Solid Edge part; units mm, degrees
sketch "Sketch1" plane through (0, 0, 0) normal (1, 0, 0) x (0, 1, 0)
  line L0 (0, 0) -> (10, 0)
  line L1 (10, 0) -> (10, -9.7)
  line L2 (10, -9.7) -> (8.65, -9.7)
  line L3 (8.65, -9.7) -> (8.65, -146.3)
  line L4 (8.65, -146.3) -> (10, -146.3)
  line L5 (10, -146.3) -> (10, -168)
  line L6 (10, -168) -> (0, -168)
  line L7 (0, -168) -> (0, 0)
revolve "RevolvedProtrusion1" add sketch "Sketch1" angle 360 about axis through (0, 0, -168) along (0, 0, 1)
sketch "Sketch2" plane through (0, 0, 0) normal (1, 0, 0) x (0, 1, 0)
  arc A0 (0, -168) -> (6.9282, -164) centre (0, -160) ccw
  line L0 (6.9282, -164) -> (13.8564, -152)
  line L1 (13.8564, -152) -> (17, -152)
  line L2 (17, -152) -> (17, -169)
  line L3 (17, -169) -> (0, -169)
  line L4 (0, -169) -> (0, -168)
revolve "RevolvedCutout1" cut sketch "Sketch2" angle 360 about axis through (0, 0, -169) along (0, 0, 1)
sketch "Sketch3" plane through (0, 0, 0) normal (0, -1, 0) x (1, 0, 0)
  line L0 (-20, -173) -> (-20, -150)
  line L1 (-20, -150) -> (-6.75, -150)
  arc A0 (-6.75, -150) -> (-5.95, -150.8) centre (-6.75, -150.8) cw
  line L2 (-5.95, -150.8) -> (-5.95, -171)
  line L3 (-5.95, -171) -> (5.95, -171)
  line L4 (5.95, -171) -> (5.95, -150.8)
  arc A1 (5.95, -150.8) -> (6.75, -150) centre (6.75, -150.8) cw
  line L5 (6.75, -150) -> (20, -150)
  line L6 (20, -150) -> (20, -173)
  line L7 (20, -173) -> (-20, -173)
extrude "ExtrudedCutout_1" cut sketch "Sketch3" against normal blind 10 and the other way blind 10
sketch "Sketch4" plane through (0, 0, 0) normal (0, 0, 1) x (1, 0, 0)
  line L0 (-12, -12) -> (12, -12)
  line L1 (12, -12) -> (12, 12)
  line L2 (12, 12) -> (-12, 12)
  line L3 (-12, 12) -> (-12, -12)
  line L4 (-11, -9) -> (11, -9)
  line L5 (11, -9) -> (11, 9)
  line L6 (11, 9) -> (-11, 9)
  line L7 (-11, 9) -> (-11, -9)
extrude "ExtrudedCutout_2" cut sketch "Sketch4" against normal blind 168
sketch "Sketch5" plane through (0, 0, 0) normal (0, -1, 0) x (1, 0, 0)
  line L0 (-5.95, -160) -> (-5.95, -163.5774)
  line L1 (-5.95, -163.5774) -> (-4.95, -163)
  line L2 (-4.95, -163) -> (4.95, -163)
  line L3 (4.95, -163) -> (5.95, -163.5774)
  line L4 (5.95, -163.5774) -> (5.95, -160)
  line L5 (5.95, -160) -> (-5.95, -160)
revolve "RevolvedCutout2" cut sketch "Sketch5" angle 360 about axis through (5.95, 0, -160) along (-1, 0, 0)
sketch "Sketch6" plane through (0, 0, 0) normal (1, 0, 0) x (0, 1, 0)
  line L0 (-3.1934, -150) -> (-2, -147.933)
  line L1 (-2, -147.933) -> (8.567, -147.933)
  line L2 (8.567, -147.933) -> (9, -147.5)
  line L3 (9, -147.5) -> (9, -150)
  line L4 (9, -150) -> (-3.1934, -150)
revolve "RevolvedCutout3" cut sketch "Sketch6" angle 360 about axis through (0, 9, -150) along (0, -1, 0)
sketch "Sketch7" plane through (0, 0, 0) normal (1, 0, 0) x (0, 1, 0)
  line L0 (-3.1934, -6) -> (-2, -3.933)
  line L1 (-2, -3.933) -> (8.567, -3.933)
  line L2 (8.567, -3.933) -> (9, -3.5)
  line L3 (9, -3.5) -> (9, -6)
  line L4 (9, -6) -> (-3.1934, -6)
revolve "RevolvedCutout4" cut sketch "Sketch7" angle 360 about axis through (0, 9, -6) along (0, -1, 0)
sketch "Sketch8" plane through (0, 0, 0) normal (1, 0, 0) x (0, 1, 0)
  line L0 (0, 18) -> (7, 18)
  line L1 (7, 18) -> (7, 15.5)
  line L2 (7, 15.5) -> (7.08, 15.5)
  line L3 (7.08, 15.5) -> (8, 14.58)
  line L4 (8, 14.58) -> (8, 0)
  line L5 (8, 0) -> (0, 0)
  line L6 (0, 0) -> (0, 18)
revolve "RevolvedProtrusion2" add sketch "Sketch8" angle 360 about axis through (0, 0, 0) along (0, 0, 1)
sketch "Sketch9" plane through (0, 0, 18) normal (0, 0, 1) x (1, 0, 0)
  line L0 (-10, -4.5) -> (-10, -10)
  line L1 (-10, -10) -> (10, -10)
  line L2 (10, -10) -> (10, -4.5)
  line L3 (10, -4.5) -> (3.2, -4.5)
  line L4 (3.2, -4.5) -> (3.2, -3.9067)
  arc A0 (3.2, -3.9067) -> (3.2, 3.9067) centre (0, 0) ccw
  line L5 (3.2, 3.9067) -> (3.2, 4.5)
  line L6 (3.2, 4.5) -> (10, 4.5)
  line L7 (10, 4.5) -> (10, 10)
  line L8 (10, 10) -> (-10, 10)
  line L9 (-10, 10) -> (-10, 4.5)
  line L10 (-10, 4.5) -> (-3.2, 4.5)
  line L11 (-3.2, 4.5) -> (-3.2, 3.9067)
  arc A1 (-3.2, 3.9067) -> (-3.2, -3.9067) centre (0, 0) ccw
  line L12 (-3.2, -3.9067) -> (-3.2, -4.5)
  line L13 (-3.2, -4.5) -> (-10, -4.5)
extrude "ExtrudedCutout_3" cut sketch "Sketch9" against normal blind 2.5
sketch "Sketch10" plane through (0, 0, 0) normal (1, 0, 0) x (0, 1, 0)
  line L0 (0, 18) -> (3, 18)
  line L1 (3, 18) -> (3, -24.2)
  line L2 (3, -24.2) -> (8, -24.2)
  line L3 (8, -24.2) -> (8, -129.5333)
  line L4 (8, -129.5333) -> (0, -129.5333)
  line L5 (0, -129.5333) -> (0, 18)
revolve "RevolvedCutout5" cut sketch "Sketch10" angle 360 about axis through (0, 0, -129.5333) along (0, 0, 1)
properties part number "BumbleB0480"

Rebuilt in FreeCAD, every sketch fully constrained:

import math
import FreeCAD as App
import Part
import Sketcher
Q = App.Units.Quantity

doc = App.newDocument("Part")
body = doc.addObject("PartDesign::Body", "Body")

sketch1 = body.newObject("Sketcher::SketchObject", "Sketch")
sketch1.AttachmentSupport = (doc.getObject("YZ_Plane"), [""])
sketch1.MapMode = "FlatFace"
sketch1.addGeometry([
    Part.LineSegment(App.Vector(10, 0, 0), App.Vector(0, 0, 0)),
    Part.LineSegment(App.Vector(0, 0, 0), App.Vector(0, -168, 0)),
    Part.LineSegment(App.Vector(0, -168, 0), App.Vector(10, -168, 0)),
    Part.LineSegment(App.Vector(10, -168, 0), App.Vector(10, -146.3, 0)),
    Part.LineSegment(App.Vector(10, -146.3, 0), App.Vector(8.7, -146.3, 0)),
    Part.LineSegment(App.Vector(8.7, -146.3, 0), App.Vector(8.7, -9.7, 0)),
    Part.LineSegment(App.Vector(8.7, -9.7, 0), App.Vector(10, -9.7, 0)),
    Part.LineSegment(App.Vector(10, -9.7, 0), App.Vector(10, 0, 0)),
], False)
sketch1.addConstraint([
    Sketcher.Constraint("Coincident", 0, 2, 1, 1),
    Sketcher.Constraint("Coincident", 1, 2, 2, 1),
    Sketcher.Constraint("Coincident", 2, 2, 3, 1),
    Sketcher.Constraint("Coincident", 3, 2, 4, 1),
    Sketcher.Constraint("Coincident", 4, 2, 5, 1),
    Sketcher.Constraint("Coincident", 5, 2, 6, 1),
    Sketcher.Constraint("Coincident", 6, 2, 7, 1),
    Sketcher.Constraint("Coincident", 7, 2, 0, 1),
    Sketcher.Constraint("Horizontal", 0),
    Sketcher.Constraint("Vertical", 1),
    Sketcher.Constraint("Horizontal", 2),
    Sketcher.Constraint("Vertical", 3),
    Sketcher.Constraint("Horizontal", 4),
    Sketcher.Constraint("Vertical", 5),
    Sketcher.Constraint("Horizontal", 6),
    Sketcher.Constraint("Vertical", 7),
    Sketcher.Constraint("Coincident", 0, 2, -1, 1),
    Sketcher.Constraint("Vertical", 3, 2, 6, 2),
    Sketcher.Constraint("DistanceX", 0, 2, 0, 1, 10.0),
    Sketcher.Constraint("DistanceY", 1, 2, 1, 1, 168.0),
    Sketcher.Constraint("DistanceY", 3, 1, 3, 2, 21.7),
    Sketcher.Constraint("DistanceY", 5, 1, 5, 2, 136.6),
    Sketcher.Constraint("DistanceX", 4, 2, 4, 1, 1.35),
])
revolution = body.newObject("PartDesign::Revolution", "Revolution")
revolution.Profile = sketch1
revolution.ReferenceAxis = (sketch1, ["V_Axis"])
revolution.Angle = 360

sketch2 = body.newObject("Sketcher::SketchObject", "Sketch001")
sketch2.AttachmentSupport = (doc.getObject("YZ_Plane"), [""])
sketch2.MapMode = "FlatFace"
sketch2.addGeometry([
    Part.ArcOfCircle(Part.Circle(App.Vector(0, -160, 0), App.Vector(0, 0, 1), 8), math.radians(-90), math.radians(-30)),
    Part.LineSegment(App.Vector(0, -168, 0), App.Vector(0, -169, 0)),
    Part.LineSegment(App.Vector(0, -169, 0), App.Vector(17, -169, 0)),
    Part.LineSegment(App.Vector(17, -169, 0), App.Vector(17, -152, 0)),
    Part.LineSegment(App.Vector(17, -152, 0), App.Vector(13.9, -152, 0)),
    Part.LineSegment(App.Vector(13.9, -152, 0), App.Vector(6.9, -164, 0)),
], False)
sketch2.addConstraint([
    Sketcher.Constraint("Coincident", 0, 1, 1, 1),
    Sketcher.Constraint("Coincident", 1, 2, 2, 1),
    Sketcher.Constraint("Coincident", 2, 2, 3, 1),
    Sketcher.Constraint("Coincident", 3, 2, 4, 1),
    Sketcher.Constraint("Coincident", 4, 2, 5, 1),
    Sketcher.Constraint("Tangent", 5, 2, 0, 2),
    Sketcher.Constraint("Vertical", 1),
    Sketcher.Constraint("Horizontal", 2),
    Sketcher.Constraint("Vertical", 3),
    Sketcher.Constraint("Horizontal", 4),
    Sketcher.Constraint("PointOnObject", 0, 3, -2),
    Sketcher.Constraint("PointOnObject", 0, 1, -2),
    Sketcher.Constraint("Equal", 2, 3),
    Sketcher.Constraint("Radius", 0, 8.0),
    Sketcher.Constraint("DistanceX", 2, 1, 2, 2, 17.0),
    Sketcher.Constraint("DistanceY", 1, 2, 1, 1, 1.0),
    Sketcher.Constraint("Angle", 5, Q("-120 deg")),
    Sketcher.Constraint("DistanceY", 0, 3, -1, 1, 160.0),
])
groove = body.newObject("PartDesign::Groove", "Groove")
groove.Profile = sketch2
groove.ReferenceAxis = (sketch2, ["V_Axis"])
groove.Angle = 360

sketch3 = body.newObject("Sketcher::SketchObject", "Sketch002")
sketch3.AttachmentSupport = (doc.getObject("XZ_Plane"), [""])
sketch3.MapMode = "FlatFace"
sketch3.addGeometry([
    Part.LineSegment(App.Vector(-20, -150, 0), App.Vector(-20, -173, 0)),
    Part.LineSegment(App.Vector(-20, -173, 0), App.Vector(20, -173, 0)),
    Part.LineSegment(App.Vector(20, -173, 0), App.Vector(20, -150, 0)),
    Part.LineSegment(App.Vector(20, -150, 0), App.Vector(6.8, -150, 0)),
    Part.ArcOfCircle(Part.Circle(App.Vector(6.8, -150.8, 0), App.Vector(0, 0, 1), 0.8), math.radians(90), math.radians(180)),
    Part.LineSegment(App.Vector(6, -150.8, 0), App.Vector(6, -171, 0)),
    Part.LineSegment(App.Vector(6, -171, 0), App.Vector(-6, -171, 0)),
    Part.LineSegment(App.Vector(-6, -171, 0), App.Vector(-6, -150.8, 0)),
    Part.ArcOfCircle(Part.Circle(App.Vector(-6.8, -150.8, 0), App.Vector(0, 0, 1), 0.8), math.radians(0), math.radians(90)),
    Part.LineSegment(App.Vector(-6.8, -150, 0), App.Vector(-20, -150, 0)),
], False)
sketch3.addConstraint([
    Sketcher.Constraint("Coincident", 0, 2, 1, 1),
    Sketcher.Constraint("Coincident", 1, 2, 2, 1),
    Sketcher.Constraint("Coincident", 2, 2, 3, 1),
    Sketcher.Constraint("Tangent", 3, 2, 4, 1),
    Sketcher.Constraint("Tangent", 4, 2, 5, 1),
    Sketcher.Constraint("Coincident", 5, 2, 6, 1),
    Sketcher.Constraint("Coincident", 6, 2, 7, 1),
    Sketcher.Constraint("Tangent", 7, 2, 8, 1),
    Sketcher.Constraint("Tangent", 8, 2, 9, 1),
    Sketcher.Constraint("Coincident", 9, 2, 0, 1),
    Sketcher.Constraint("Vertical", 0),
    Sketcher.Constraint("Horizontal", 1),
    Sketcher.Constraint("Vertical", 2),
    Sketcher.Constraint("Horizontal", 3),
    Sketcher.Constraint("Vertical", 5),
    Sketcher.Constraint("Horizontal", 6),
    Sketcher.Constraint("Vertical", 7),
    Sketcher.Constraint("Horizontal", 9),
    Sketcher.Constraint("Equal", 4, 8),
    Sketcher.Constraint("Symmetric", 4, 3, 8, 3, -2),
    Sketcher.Constraint("Equal", 3, 9),
    Sketcher.Constraint("Radius", 4, 0.8),
    Sketcher.Constraint("DistanceX", 1, 1, 1, 2, 40.0),
    Sketcher.Constraint("DistanceY", 0, 2, 0, 1, 23.0),
    Sketcher.Constraint("DistanceX", 6, 2, 6, 1, 11.9),
    Sketcher.Constraint("DistanceY", 5, 2, 5, 1, 20.2),
    Sketcher.Constraint("DistanceY", 0, 2, -1, 1, 173.0),
])
pocket1 = body.newObject("PartDesign::Pocket", "Pocket")
pocket1.Profile = sketch3
pocket1.Type = "ThroughAll"
pocket1.Midplane = True

sketch4 = body.newObject("Sketcher::SketchObject", "Sketch003")
sketch4.AttachmentSupport = (doc.getObject("XY_Plane"), [""])
sketch4.MapMode = "FlatFace"
sketch4.addGeometry([
    Part.LineSegment(App.Vector(-12, 12, 0), App.Vector(-12, -12, 0)),
    Part.LineSegment(App.Vector(-12, -12, 0), App.Vector(12, -12, 0)),
    Part.LineSegment(App.Vector(12, -12, 0), App.Vector(12, 12, 0)),
    Part.LineSegment(App.Vector(12, 12, 0), App.Vector(-12, 12, 0)),
    Part.LineSegment(App.Vector(11, -9, 0), App.Vector(-11, -9, 0)),
    Part.LineSegment(App.Vector(-11, -9, 0), App.Vector(-11, 9, 0)),
    Part.LineSegment(App.Vector(-11, 9, 0), App.Vector(11, 9, 0)),
    Part.LineSegment(App.Vector(11, 9, 0), App.Vector(11, -9, 0)),
], False)
sketch4.addConstraint([
    Sketcher.Constraint("Coincident", 0, 2, 1, 1),
    Sketcher.Constraint("Coincident", 1, 2, 2, 1),
    Sketcher.Constraint("Coincident", 2, 2, 3, 1),
    Sketcher.Constraint("Coincident", 3, 2, 0, 1),
    Sketcher.Constraint("Coincident", 4, 2, 5, 1),
    Sketcher.Constraint("Coincident", 5, 2, 6, 1),
    Sketcher.Constraint("Coincident", 6, 2, 7, 1),
    Sketcher.Constraint("Coincident", 7, 2, 4, 1),
    Sketcher.Constraint("Vertical", 0),
    Sketcher.Constraint("Horizontal", 1),
    Sketcher.Constraint("Vertical", 2),
    Sketcher.Constraint("Horizontal", 3),
    Sketcher.Constraint("Horizontal", 4),
    Sketcher.Constraint("Vertical", 5),
    Sketcher.Constraint("Horizontal", 6),
    Sketcher.Constraint("Vertical", 7),
    Sketcher.Constraint("Symmetric", 0, 2, 2, 2, -1, 1),
    Sketcher.Constraint("Symmetric", 4, 2, 6, 2, -1, 1),
    Sketcher.Constraint("Equal", 3, 0),
    Sketcher.Constraint("DistanceX", 1, 1, 1, 2, 24.0),
    Sketcher.Constraint("DistanceX", 4, 2, 4, 1, 22.0),
    Sketcher.Constraint("DistanceY", 5, 1, 5, 2, 18.0),
])
pocket2 = body.newObject("PartDesign::Pocket", "Pocket001")
pocket2.Profile = sketch4
pocket2.Length = 168

sketch5 = body.newObject("Sketcher::SketchObject", "Sketch004")
sketch5.AttachmentSupport = (doc.getObject("XZ_Plane"), [""])
sketch5.MapMode = "FlatFace"
sketch5.addGeometry([
    Part.LineSegment(App.Vector(6, -160, 0), App.Vector(-6, -160, 0)),
    Part.LineSegment(App.Vector(-6, -160, 0), App.Vector(-6, -163.6, 0)),
    Part.LineSegment(App.Vector(-6, -163.6, 0), App.Vector(-5, -163, 0)),
    Part.LineSegment(App.Vector(-5, -163, 0), App.Vector(5, -163, 0)),
    Part.LineSegment(App.Vector(5, -163, 0), App.Vector(6, -163.6, 0)),
    Part.LineSegment(App.Vector(6, -163.6, 0), App.Vector(6, -160, 0)),
], False)
sketch5.addGeometry(Part.LineSegment(App.Vector(6, -160, 0), App.Vector(-6, -160, 0)), True)
sketch5.addConstraint([
    Sketcher.Constraint("Coincident", 0, 2, 1, 1),
    Sketcher.Constraint("Coincident", 1, 2, 2, 1),
    Sketcher.Constraint("Coincident", 2, 2, 3, 1),
    Sketcher.Constraint("Coincident", 3, 2, 4, 1),
    Sketcher.Constraint("Coincident", 4, 2, 5, 1),
    Sketcher.Constraint("Coincident", 5, 2, 0, 1),
    Sketcher.Constraint("Horizontal", 0),
    Sketcher.Constraint("Vertical", 1),
    Sketcher.Constraint("Horizontal", 3),
    Sketcher.Constraint("Vertical", 5),
    Sketcher.Constraint("Horizontal", 6),
    Sketcher.Constraint("Coincident", 6, 1, 5, 2),
    Sketcher.Constraint("Symmetric", 1, 2, 4, 2, -2),
    Sketcher.Constraint("Vertical", 1, 2, 6, 2),
    Sketcher.Constraint("Equal", 2, 4),
    Sketcher.Constraint("DistanceX", 0, 2, 0, 1, 11.9),
    Sketcher.Constraint("DistanceX", 3, 1, 3, 2, 9.9),
    Sketcher.Constraint("DistanceY", 0, 2, -1, 1, 160.0),
    Sketcher.Constraint("DistanceY", 2, 2, -1, 1, 163.0),
    Sketcher.Constraint("DistanceY", 1, 2, 1, 1, 3.5774),
])
groove2 = body.newObject("PartDesign::Groove", "Groove001")
groove2.Profile = sketch5
groove2.ReferenceAxis = (sketch5, ["Axis0"])
groove2.Angle = 360

sketch6 = body.newObject("Sketcher::SketchObject", "Sketch005")
sketch6.AttachmentSupport = (doc.getObject("YZ_Plane"), [""])
sketch6.MapMode = "FlatFace"
sketch6.addGeometry([
    Part.LineSegment(App.Vector(-2, -147.9, 0), App.Vector(-3.2, -150, 0)),
    Part.LineSegment(App.Vector(-3.2, -150, 0), App.Vector(9, -150, 0)),
    Part.LineSegment(App.Vector(9, -150, 0), App.Vector(9, -147.5, 0)),
    Part.LineSegment(App.Vector(9, -147.5, 0), App.Vector(8.6, -147.9, 0)),
    Part.LineSegment(App.Vector(8.6, -147.9, 0), App.Vector(-2, -147.9, 0)),
], False)
sketch6.addGeometry(Part.LineSegment(App.Vector(9, -150, 0), App.Vector(-3.2, -150, 0)), True)
sketch6.addConstraint([
    Sketcher.Constraint("Coincident", 0, 2, 1, 1),
    Sketcher.Constraint("Coincident", 1, 2, 2, 1),
    Sketcher.Constraint("Coincident", 2, 2, 3, 1),
    Sketcher.Constraint("Coincident", 3, 2, 4, 1),
    Sketcher.Constraint("Coincident", 4, 2, 0, 1),
    Sketcher.Constraint("Horizontal", 1),
    Sketcher.Constraint("Vertical", 2),
    Sketcher.Constraint("Horizontal", 4),
    Sketcher.Constraint("Horizontal", 5),
    Sketcher.Constraint("Coincident", 5, 1, 1, 2),
    Sketcher.Constraint("Equal", 1, 5),
    Sketcher.Constraint("Angle", 0, Q("-120.0004 deg")),
    Sketcher.Constraint("Angle", 3, Q("-135 deg")),
    Sketcher.Constraint("DistanceY", 2, 1, 2, 2, 2.5),
    Sketcher.Constraint("DistanceY", 0, 2, -1, 1, 150.0),
    Sketcher.Constraint("DistanceX", -1, 1, 1, 2, 9.0),
    Sketcher.Constraint("DistanceX", 4, 2, -1, 1, 2.0),
    Sketcher.Constraint("DistanceX", 4, 2, 4, 1, 10.567),
])
groove3 = body.newObject("PartDesign::Groove", "Groove002")
groove3.Profile = sketch6
groove3.ReferenceAxis = (sketch6, ["Axis0"])
groove3.Angle = 360

sketch7 = body.newObject("Sketcher::SketchObject", "Sketch006")
sketch7.AttachmentSupport = (doc.getObject("YZ_Plane"), [""])
sketch7.MapMode = "FlatFace"
sketch7.addGeometry([
    Part.LineSegment(App.Vector(-2, -3.9, 0), App.Vector(-3.2, -6, 0)),
    Part.LineSegment(App.Vector(-3.2, -6, 0), App.Vector(9, -6, 0)),
    Part.LineSegment(App.Vector(9, -6, 0), App.Vector(9, -3.5, 0)),
    Part.LineSegment(App.Vector(9, -3.5, 0), App.Vector(8.6, -3.9, 0)),
    Part.LineSegment(App.Vector(8.6, -3.9, 0), App.Vector(-2, -3.9, 0)),
], False)
sketch7.addGeometry(Part.LineSegment(App.Vector(9, -6, 0), App.Vector(-3.2, -6, 0)), True)
sketch7.addConstraint([
    Sketcher.Constraint("Coincident", 0, 2, 1, 1),
    Sketcher.Constraint("Coincident", 1, 2, 2, 1),
    Sketcher.Constraint("Coincident", 2, 2, 3, 1),
    Sketcher.Constraint("Coincident", 3, 2, 4, 1),
    Sketcher.Constraint("Coincident", 4, 2, 0, 1),
    Sketcher.Constraint("Horizontal", 1),
    Sketcher.Constraint("Vertical", 2),
    Sketcher.Constraint("Horizontal", 4),
    Sketcher.Constraint("Horizontal", 5),
    Sketcher.Constraint("Coincident", 5, 1, 1, 2),
    Sketcher.Constraint("Equal", 1, 5),
    Sketcher.Constraint("Angle", 0, Q("-120.0004 deg")),
    Sketcher.Constraint("Angle", 3, Q("-135 deg")),
    Sketcher.Constraint("DistanceY", 2, 1, 2, 2, 2.5),
    Sketcher.Constraint("DistanceY", 0, 2, -1, 1, 6.0),
    Sketcher.Constraint("DistanceX", -1, 1, 1, 2, 9.0),
    Sketcher.Constraint("DistanceX", 4, 2, -1, 1, 2.0),
    Sketcher.Constraint("DistanceX", 4, 2, 4, 1, 10.567),
])
groove4 = body.newObject("PartDesign::Groove", "Groove003")
groove4.Profile = sketch7
groove4.ReferenceAxis = (sketch7, ["Axis0"])
groove4.Angle = 360

sketch8 = body.newObject("Sketcher::SketchObject", "Sketch007")
sketch8.AttachmentSupport = (doc.getObject("YZ_Plane"), [""])
sketch8.MapMode = "FlatFace"
sketch8.addGeometry([
    Part.LineSegment(App.Vector(7, 18, 0), App.Vector(0, 18, 0)),
    Part.LineSegment(App.Vector(0, 18, 0), App.Vector(0, 0, 0)),
    Part.LineSegment(App.Vector(0, 0, 0), App.Vector(8, 0, 0)),
    Part.LineSegment(App.Vector(8, 0, 0), App.Vector(8, 14.58, 0)),
    Part.LineSegment(App.Vector(8, 14.58, 0), App.Vector(7.08, 15.5, 0)),
    Part.LineSegment(App.Vector(7.08, 15.5, 0), App.Vector(7, 15.5, 0)),
    Part.LineSegment(App.Vector(7, 15.5, 0), App.Vector(7, 18, 0)),
], False)
sketch8.addConstraint([
    Sketcher.Constraint("Coincident", 0, 2, 1, 1),
    Sketcher.Constraint("Coincident", 1, 2, 2, 1),
    Sketcher.Constraint("Coincident", 2, 2, 3, 1),
    Sketcher.Constraint("Coincident", 3, 2, 4, 1),
    Sketcher.Constraint("Coincident", 4, 2, 5, 1),
    Sketcher.Constraint("Coincident", 5, 2, 6, 1),
    Sketcher.Constraint("Coincident", 6, 2, 0, 1),
    Sketcher.Constraint("Horizontal", 0),
    Sketcher.Constraint("Vertical", 1),
    Sketcher.Constraint("Horizontal", 2),
    Sketcher.Constraint("Vertical", 3),
    Sketcher.Constraint("Horizontal", 5),
    Sketcher.Constraint("Vertical", 6),
    Sketcher.Constraint("Coincident", 1, 2, -1, 1),
    Sketcher.Constraint("DistanceX", 0, 2, 0, 1, 7.0),
    Sketcher.Constraint("DistanceX", 2, 1, 2, 2, 8.0),
    Sketcher.Constraint("DistanceY", 1, 2, 1, 1, 18.0),
    Sketcher.Constraint("Angle", 4, Q("135 deg")),
    Sketcher.Constraint("DistanceY", 6, 1, 6, 2, 2.5),
    Sketcher.Constraint("DistanceX", 5, 2, 5, 1, 0.08),
])
revolution2 = body.newObject("PartDesign::Revolution", "Revolution001")
revolution2.Profile = sketch8
revolution2.ReferenceAxis = (sketch8, ["V_Axis"])
revolution2.Angle = 360

sketch9 = body.newObject("Sketcher::SketchObject", "Sketch008")
sketch9.AttachmentSupport = (doc.getObject("XY_Plane"), [""])
sketch9.MapMode = "FlatFace"
sketch9.AttachmentOffset = App.Placement(App.Vector(0, 0, 18), App.Rotation())
sketch9.addGeometry([
    Part.LineSegment(App.Vector(-3.2, -4.5, 0), App.Vector(-10, -4.5, 0)),
    Part.LineSegment(App.Vector(-10, -4.5, 0), App.Vector(-10, -10, 0)),
    Part.LineSegment(App.Vector(-10, -10, 0), App.Vector(10, -10, 0)),
    Part.LineSegment(App.Vector(10, -10, 0), App.Vector(10, -4.5, 0)),
    Part.LineSegment(App.Vector(10, -4.5, 0), App.Vector(3.2, -4.5, 0)),
    Part.LineSegment(App.Vector(3.2, -4.5, 0), App.Vector(3.2, -3.9, 0)),
    Part.ArcOfCircle(Part.Circle(App.Vector(0, 0, 0), App.Vector(0, 0, 1), 5), math.radians(-51), math.radians(51)),
    Part.LineSegment(App.Vector(3.2, 3.9, 0), App.Vector(3.2, 4.5, 0)),
    Part.LineSegment(App.Vector(3.2, 4.5, 0), App.Vector(10, 4.5, 0)),
    Part.LineSegment(App.Vector(10, 4.5, 0), App.Vector(10, 10, 0)),
    Part.LineSegment(App.Vector(10, 10, 0), App.Vector(-10, 10, 0)),
    Part.LineSegment(App.Vector(-10, 10, 0), App.Vector(-10, 4.5, 0)),
    Part.LineSegment(App.Vector(-10, 4.5, 0), App.Vector(-3.2, 4.5, 0)),
    Part.LineSegment(App.Vector(-3.2, 4.5, 0), App.Vector(-3.2, 3.9, 0)),
    Part.ArcOfCircle(Part.Circle(App.Vector(0, 0, 0), App.Vector(0, 0, 1), 5), math.radians(129), math.radians(231)),
    Part.LineSegment(App.Vector(-3.2, -3.9, 0), App.Vector(-3.2, -4.5, 0)),
], False)
sketch9.addConstraint([
    Sketcher.Constraint("Coincident", 0, 2, 1, 1),
    Sketcher.Constraint("Coincident", 1, 2, 2, 1),
    Sketcher.Constraint("Coincident", 2, 2, 3, 1),
    Sketcher.Constraint("Coincident", 3, 2, 4, 1),
    Sketcher.Constraint("Coincident", 4, 2, 5, 1),
    Sketcher.Constraint("Coincident", 5, 2, 6, 1),
    Sketcher.Constraint("Coincident", 6, 2, 7, 1),
    Sketcher.Constraint("Coincident", 7, 2, 8, 1),
    Sketcher.Constraint("Coincident", 8, 2, 9, 1),
    Sketcher.Constraint("Coincident", 9, 2, 10, 1),
    Sketcher.Constraint("Coincident", 10, 2, 11, 1),
    Sketcher.Constraint("Coincident", 11, 2, 12, 1),
    Sketcher.Constraint("Coincident", 12, 2, 13, 1),
    Sketcher.Constraint("Coincident", 13, 2, 14, 1),
    Sketcher.Constraint("Coincident", 14, 2, 15, 1),
    Sketcher.Constraint("Coincident", 15, 2, 0, 1),
    Sketcher.Constraint("Horizontal", 0),
    Sketcher.Constraint("Vertical", 1),
    Sketcher.Constraint("Horizontal", 2),
    Sketcher.Constraint("Vertical", 3),
    Sketcher.Constraint("Horizontal", 4),
    Sketcher.Constraint("Vertical", 5),
    Sketcher.Constraint("Vertical", 7),
    Sketcher.Constraint("Horizontal", 8),
    Sketcher.Constraint("Vertical", 9),
    Sketcher.Constraint("Horizontal", 10),
    Sketcher.Constraint("Vertical", 11),
    Sketcher.Constraint("Horizontal", 12),
    Sketcher.Constraint("Vertical", 13),
    Sketcher.Constraint("Vertical", 15),
    Sketcher.Constraint("Coincident", 6, 3, -1, 1),
    Sketcher.Constraint("Coincident", 14, 3, -1, 1),
    Sketcher.Constraint("Equal", 6, 14),
    Sketcher.Constraint("Symmetric", 0, 2, 8, 2, -1, 1),
    Sketcher.Constraint("Symmetric", 2, 2, 10, 2, -1, 1),
    Sketcher.Constraint("Symmetric", 4, 2, 12, 2, -1, 1),
    Sketcher.Constraint("Symmetric", 0, 2, 3, 2, -2),
    Sketcher.Constraint("Horizontal", 6, 2, 13, 2),
    Sketcher.Constraint("Horizontal", 5, 2, 14, 2),
    Sketcher.Constraint("DistanceX", 2, 1, 2, 2, 20.0),
    Sketcher.Constraint("Radius", 6, 5.05),
    Sketcher.Constraint("DistanceX", 0, 2, 0, 1, 6.8),
    Sketcher.Constraint("DistanceY", 1, 2, 1, 1, 5.5),
    Sketcher.Constraint("DistanceY", 1, 2, -1, 1, 10.0),
])
pocket3 = body.newObject("PartDesign::Pocket", "Pocket002")
pocket3.Profile = sketch9
pocket3.Length = 2.5

sketch10 = body.newObject("Sketcher::SketchObject", "Sketch009")
sketch10.AttachmentSupport = (doc.getObject("YZ_Plane"), [""])
sketch10.MapMode = "FlatFace"
sketch10.addGeometry([
    Part.LineSegment(App.Vector(3, 18, 0), App.Vector(0, 18, 0)),
    Part.LineSegment(App.Vector(0, 18, 0), App.Vector(0, -129.5, 0)),
    Part.LineSegment(App.Vector(0, -129.5, 0), App.Vector(8, -129.5, 0)),
    Part.LineSegment(App.Vector(8, -129.5, 0), App.Vector(8, -24.2, 0)),
    Part.LineSegment(App.Vector(8, -24.2, 0), App.Vector(3, -24.2, 0)),
    Part.LineSegment(App.Vector(3, -24.2, 0), App.Vector(3, 18, 0)),
], False)
sketch10.addConstraint([
    Sketcher.Constraint("Coincident", 0, 2, 1, 1),
    Sketcher.Constraint("Coincident", 1, 2, 2, 1),
    Sketcher.Constraint("Coincident", 2, 2, 3, 1),
    Sketcher.Constraint("Coincident", 3, 2, 4, 1),
    Sketcher.Constraint("Coincident", 4, 2, 5, 1),
    Sketcher.Constraint("Coincident", 5, 2, 0, 1),
    Sketcher.Constraint("Horizontal", 0),
    Sketcher.Constraint("Vertical", 1),
    Sketcher.Constraint("Horizontal", 2),
    Sketcher.Constraint("Vertical", 3),
    Sketcher.Constraint("Horizontal", 4),
    Sketcher.Constraint("Vertical", 5),
    Sketcher.Constraint("PointOnObject", 0, 2, -2),
    Sketcher.Constraint("DistanceX", 0, 2, 0, 1, 3.0),
    Sketcher.Constraint("DistanceX", 2, 1, 2, 2, 8.0),
    Sketcher.Constraint("DistanceY", 5, 1, 5, 2, 42.2),
    Sketcher.Constraint("DistanceY", -1, 1, 0, 2, 18.0),
    Sketcher.Constraint("DistanceY", 1, 2, 1, 1, 147.5333),
])
groove5 = body.newObject("PartDesign::Groove", "Groove004")
groove5.Profile = sketch10
groove5.ReferenceAxis = (sketch10, ["V_Axis"])
groove5.Angle = 360

doc.recompute()
